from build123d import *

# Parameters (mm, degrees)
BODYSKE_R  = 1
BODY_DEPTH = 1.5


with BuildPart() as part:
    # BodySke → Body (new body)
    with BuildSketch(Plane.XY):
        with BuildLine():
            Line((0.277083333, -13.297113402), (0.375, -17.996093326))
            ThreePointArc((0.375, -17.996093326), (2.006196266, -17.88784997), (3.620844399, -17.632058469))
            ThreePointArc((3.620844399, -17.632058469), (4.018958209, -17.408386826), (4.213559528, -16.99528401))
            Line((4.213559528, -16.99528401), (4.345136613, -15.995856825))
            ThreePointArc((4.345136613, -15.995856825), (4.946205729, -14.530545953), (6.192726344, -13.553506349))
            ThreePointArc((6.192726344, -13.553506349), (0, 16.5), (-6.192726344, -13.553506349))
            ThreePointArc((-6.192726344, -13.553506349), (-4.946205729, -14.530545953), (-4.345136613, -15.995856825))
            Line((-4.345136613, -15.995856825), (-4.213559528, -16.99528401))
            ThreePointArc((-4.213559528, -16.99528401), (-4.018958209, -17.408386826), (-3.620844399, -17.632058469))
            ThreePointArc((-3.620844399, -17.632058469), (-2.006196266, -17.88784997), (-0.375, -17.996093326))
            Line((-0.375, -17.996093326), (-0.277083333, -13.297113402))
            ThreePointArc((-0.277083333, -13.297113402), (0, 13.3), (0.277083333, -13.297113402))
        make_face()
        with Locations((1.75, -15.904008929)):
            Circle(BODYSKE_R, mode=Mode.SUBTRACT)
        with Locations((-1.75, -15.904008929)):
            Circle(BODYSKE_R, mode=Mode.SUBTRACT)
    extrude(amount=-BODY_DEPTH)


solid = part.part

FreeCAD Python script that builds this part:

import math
import FreeCAD as App
import Part
import Sketcher
from FreeCAD import Vector
Q = App.Units.Quantity

doc = App.newDocument("Part")
params = doc.addObject("Spreadsheet::Sheet", "Params")
for row, (alias, value) in enumerate([
    ("sketch1_diameter", "2 mm"),
    ("sketch1_radius", "18 mm"),
    ("sketch1_radius2", "13.3 mm"),
    ("sketch1_radius3", "0.75 mm"),
    ("pad1_length", "1.5 mm"),
], start=1):
    params.set(f"A{row}", alias)
    params.set(f"B{row}", "=" + value)
    params.setAlias(f"B{row}", alias)

body = doc.addObject("PartDesign::Body", "Body")

# Sketch on XY plane
sketch1 = body.newObject("Sketcher::SketchObject", "Sketch")
sketch1.AttachmentSupport = (doc.getObject("XY_Plane"), [""])
sketch1.MapMode = "FlatFace"
sketch1.addGeometry([
    Part.LineSegment(Vector(0.3, -13.3, 0), Vector(0.4, -18, 0)),  # 0
    Part.ArcOfCircle(Part.Circle(Vector(0, 0, 0), Vector(0, 0, 1), 18), math.radians(-88.81), math.radians(-78.4)),  # 1
    Part.ArcOfCircle(Part.Circle(Vector(3.5, -16.9, 0), Vector(0, 0, 1), 0.8), math.radians(-78), math.radians(-8)),  # 2
    Part.LineSegment(Vector(4.2, -17, 0), Vector(4.3, -16, 0)),  # 3
    Part.ArcOfCircle(Part.Circle(Vector(7.4, -16.4, 0), Vector(0, 0, 1), 3.1), math.radians(113), math.radians(173)),  # 4
    Part.ArcOfCircle(Part.Circle(Vector(0, 0.8, 0), Vector(0, 0, 1), 15.7), math.radians(-67), math.radians(247)),  # 5
    Part.ArcOfCircle(Part.Circle(Vector(-7.4, -16.4, 0), Vector(0, 0, 1), 3.1), math.radians(7), math.radians(67)),  # 6
    Part.LineSegment(Vector(-4.3, -16, 0), Vector(-4.2, -17, 0)),  # 7
    Part.ArcOfCircle(Part.Circle(Vector(-3.5, -16.9, 0), Vector(0, 0, 1), 0.8), math.radians(-172), math.radians(-102)),  # 8
    Part.ArcOfCircle(Part.Circle(Vector(0, 0, 0), Vector(0, 0, 1), 18), math.radians(-101.6), math.radians(-91.19)),  # 9
    Part.LineSegment(Vector(-0.4, -18, 0), Vector(-0.3, -13.3, 0)),  # 10
    Part.ArcOfCircle(Part.Circle(Vector(0, 0, 0), Vector(0, 0, 1), 13.3), math.radians(-89), math.radians(269)),  # 11
    Part.Circle(Vector(-1.8, -15.9, 0), Vector(0, 0, 1), 1),  # 12
    Part.Circle(Vector(1.8, -15.9, 0), Vector(0, 0, 1), 1),  # 13
], False)
sketch1.addConstraint([
    Sketcher.Constraint("Coincident", 0, 2, 1, 1),
    Sketcher.Constraint("Tangent", 1, 2, 2, 1),
    Sketcher.Constraint("Tangent", 2, 2, 3, 1),
    Sketcher.Constraint("Tangent", 3, 2, 4, 2),
    Sketcher.Constraint("Tangent", 4, 1, 5, 1),
    Sketcher.Constraint("Tangent", 5, 2, 6, 2),
    Sketcher.Constraint("Tangent", 6, 1, 7, 1),
    Sketcher.Constraint("Tangent", 7, 2, 8, 1),
    Sketcher.Constraint("Tangent", 8, 2, 9, 1),
    Sketcher.Constraint("Coincident", 9, 2, 10, 1),
    Sketcher.Constraint("Coincident", 10, 2, 11, 2),
    Sketcher.Constraint("Coincident", 11, 1, 0, 1),
    Sketcher.Constraint("Coincident", 1, 3, -1, 1),
    Sketcher.Constraint("Coincident", 9, 3, -1, 1),
    Sketcher.Constraint("Coincident", 11, 3, -1, 1),
    Sketcher.Constraint("Equal", 4, 6),
    Sketcher.Constraint("Equal", 2, 8),
    Sketcher.Constraint("Equal", 1, 9),
    Sketcher.Constraint("Equal", 12, 13),
    Sketcher.Constraint("Symmetric", 4, 3, 6, 3, -2),
    Sketcher.Constraint("Symmetric", 12, 3, 13, 3, -2),
    Sketcher.Constraint("Horizontal", 2, 3, 8, 3),
    Sketcher.Constraint("Horizontal", 0, 2, 9, 2),
    Sketcher.Constraint("Horizontal", 10, 2, 11, 1),
    Sketcher.Constraint("Diameter", 12, Q("2 mm")),
    Sketcher.Constraint("Radius", 1, Q("18 mm")),
    Sketcher.Constraint("Radius", 11, Q("13.3 mm")),
    Sketcher.Constraint("Radius", 2, Q("0.75 mm")),
    Sketcher.Constraint("Angle", 3, Q("82.5 deg")),
    Sketcher.Constraint("DistanceX", 12, 3, 13, 3, Q("3.5 mm")),
    Sketcher.Constraint("Radius", 5, Q("15.66478 mm")),
    Sketcher.Constraint("DistanceX", 9, 2, 0, 2, Q("0.75 mm")),
    Sketcher.Constraint("Radius", 4, Q("3.099375 mm")),
    Sketcher.Constraint("DistanceY", 1, 2, 3, 2, Q("1.636202 mm")),
    Sketcher.Constraint("DistanceY", 4, 3, 4, 1, Q("2.8469 mm")),
    Sketcher.Constraint("DistanceY", 12, 3, -1, 1, Q("15.904009 mm")),
    Sketcher.Constraint("DistanceY", 9, 2, 10, 2, Q("4.69898 mm")),
])
sketch1.setExpression("Constraints[24]", "Params.sketch1_diameter")
sketch1.setExpression("Constraints[25]", "Params.sketch1_radius")
sketch1.setExpression("Constraints[26]", "Params.sketch1_radius2")
sketch1.setExpression("Constraints[27]", "Params.sketch1_radius3")
pad1 = body.newObject("PartDesign::Pad", "Pad")
pad1.Profile = sketch1
pad1.setExpression("Length", "Params.pad1_length")
pad1.Reversed = True

doc.recompute()
